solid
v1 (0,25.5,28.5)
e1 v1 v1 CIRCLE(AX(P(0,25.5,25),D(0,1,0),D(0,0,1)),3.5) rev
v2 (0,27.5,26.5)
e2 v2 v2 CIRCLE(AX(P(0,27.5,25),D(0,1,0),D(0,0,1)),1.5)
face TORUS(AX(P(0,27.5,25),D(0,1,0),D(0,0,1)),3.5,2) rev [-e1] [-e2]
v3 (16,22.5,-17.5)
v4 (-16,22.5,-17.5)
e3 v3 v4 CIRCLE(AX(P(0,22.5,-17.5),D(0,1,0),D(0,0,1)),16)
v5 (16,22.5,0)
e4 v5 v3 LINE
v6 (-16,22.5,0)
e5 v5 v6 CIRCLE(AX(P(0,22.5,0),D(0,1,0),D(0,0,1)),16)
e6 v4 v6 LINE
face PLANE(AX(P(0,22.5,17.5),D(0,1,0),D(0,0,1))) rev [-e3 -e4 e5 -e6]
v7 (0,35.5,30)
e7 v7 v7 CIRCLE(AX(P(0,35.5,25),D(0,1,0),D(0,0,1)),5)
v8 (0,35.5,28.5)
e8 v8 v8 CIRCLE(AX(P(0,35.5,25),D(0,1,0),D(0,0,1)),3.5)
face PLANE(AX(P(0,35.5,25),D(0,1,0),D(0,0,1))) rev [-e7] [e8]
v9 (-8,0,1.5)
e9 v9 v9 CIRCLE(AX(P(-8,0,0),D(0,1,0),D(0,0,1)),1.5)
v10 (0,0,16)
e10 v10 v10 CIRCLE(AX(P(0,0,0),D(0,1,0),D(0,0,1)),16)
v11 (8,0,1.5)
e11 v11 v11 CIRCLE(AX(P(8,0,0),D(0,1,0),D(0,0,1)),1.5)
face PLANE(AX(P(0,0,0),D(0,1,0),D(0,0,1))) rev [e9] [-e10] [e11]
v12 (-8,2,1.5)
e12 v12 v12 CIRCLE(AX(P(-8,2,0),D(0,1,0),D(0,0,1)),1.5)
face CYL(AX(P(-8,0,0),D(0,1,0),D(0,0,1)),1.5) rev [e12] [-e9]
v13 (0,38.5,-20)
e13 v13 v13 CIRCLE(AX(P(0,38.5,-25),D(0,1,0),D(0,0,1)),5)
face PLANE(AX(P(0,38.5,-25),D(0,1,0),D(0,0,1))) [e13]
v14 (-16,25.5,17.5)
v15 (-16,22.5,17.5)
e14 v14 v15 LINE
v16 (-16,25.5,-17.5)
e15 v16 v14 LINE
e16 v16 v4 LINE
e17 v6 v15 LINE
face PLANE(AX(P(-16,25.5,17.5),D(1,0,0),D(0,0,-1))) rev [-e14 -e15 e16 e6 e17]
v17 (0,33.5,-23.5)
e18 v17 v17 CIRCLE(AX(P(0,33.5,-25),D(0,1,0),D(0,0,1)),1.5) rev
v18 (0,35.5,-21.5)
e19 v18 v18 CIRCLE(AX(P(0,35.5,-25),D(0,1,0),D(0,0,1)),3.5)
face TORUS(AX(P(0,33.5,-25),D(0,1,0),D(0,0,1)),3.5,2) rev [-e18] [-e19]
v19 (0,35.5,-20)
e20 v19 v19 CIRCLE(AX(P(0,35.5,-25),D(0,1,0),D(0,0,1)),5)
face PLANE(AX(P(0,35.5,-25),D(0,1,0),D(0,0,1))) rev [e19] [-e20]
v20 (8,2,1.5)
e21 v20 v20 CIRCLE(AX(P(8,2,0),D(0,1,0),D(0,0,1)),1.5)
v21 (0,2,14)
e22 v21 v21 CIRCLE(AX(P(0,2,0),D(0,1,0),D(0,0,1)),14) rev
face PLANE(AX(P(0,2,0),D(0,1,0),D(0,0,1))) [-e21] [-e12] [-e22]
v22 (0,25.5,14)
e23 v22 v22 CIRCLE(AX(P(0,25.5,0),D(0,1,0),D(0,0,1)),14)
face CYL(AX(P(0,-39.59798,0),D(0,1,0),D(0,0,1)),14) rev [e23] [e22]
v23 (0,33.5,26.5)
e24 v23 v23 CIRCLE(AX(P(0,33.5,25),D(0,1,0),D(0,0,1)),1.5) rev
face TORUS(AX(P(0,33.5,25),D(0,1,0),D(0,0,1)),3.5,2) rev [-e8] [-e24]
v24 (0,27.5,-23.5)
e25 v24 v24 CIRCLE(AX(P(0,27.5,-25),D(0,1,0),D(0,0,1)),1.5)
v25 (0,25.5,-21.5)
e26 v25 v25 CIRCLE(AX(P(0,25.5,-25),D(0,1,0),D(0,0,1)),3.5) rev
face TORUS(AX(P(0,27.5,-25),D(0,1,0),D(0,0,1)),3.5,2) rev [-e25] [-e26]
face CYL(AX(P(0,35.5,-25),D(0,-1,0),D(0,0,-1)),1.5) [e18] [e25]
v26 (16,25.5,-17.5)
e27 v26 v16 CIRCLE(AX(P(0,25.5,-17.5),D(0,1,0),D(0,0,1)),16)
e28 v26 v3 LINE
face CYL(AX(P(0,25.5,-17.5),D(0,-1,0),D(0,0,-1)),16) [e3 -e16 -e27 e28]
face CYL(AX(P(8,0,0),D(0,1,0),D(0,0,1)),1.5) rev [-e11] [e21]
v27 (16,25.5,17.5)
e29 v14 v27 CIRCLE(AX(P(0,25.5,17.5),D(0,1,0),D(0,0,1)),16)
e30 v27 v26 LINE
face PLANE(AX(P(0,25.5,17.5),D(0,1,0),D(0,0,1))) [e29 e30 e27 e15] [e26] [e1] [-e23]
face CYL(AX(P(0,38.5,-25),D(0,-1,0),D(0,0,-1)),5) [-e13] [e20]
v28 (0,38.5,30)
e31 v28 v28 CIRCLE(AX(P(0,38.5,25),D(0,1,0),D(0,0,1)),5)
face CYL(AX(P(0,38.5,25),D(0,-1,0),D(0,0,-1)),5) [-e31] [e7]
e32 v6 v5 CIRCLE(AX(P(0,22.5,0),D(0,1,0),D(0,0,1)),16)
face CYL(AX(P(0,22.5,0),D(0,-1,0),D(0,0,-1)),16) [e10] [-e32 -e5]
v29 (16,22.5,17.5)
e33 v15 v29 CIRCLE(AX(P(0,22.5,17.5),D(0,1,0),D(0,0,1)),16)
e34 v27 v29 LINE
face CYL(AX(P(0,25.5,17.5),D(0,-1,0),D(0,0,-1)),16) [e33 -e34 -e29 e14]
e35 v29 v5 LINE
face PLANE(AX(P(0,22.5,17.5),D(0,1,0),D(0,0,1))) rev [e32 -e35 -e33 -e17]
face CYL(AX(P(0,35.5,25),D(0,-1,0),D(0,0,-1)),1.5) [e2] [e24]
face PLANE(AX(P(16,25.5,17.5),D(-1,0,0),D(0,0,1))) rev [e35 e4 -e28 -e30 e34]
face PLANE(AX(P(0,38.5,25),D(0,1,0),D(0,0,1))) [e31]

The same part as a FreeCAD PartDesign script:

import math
import FreeCAD as App
import Part
import Sketcher
from FreeCAD import Vector


def edges_at(feature, points):
    """Names of the edges that pass closest to the given points."""
    edges = feature.Shape.Edges
    near = lambda p: min(range(len(edges)), key=lambda i: edges[i].distToShape(Part.Vertex(*p))[0])
    return sorted({f"Edge{near(p) + 1}" for p in points})

doc = App.newDocument("Part")
body = doc.addObject("PartDesign::Body", "Body")

sketch1 = doc.addObject("Sketcher::SketchObject", "Sketch")
body.addObject(sketch1)
sketch1.AttachmentSupport = (doc.XZ_Plane, [""])
sketch1.MapMode = "FlatFace"
sketch1.addGeometry(Part.Circle(Vector(0, 0, 0), Vector(0, 0, 1), 16), False)
sketch1.addConstraint(Sketcher.Constraint("Coincident", 0, 3, -1, 1))
sketch1.addConstraint(Sketcher.Constraint("Diameter", 0, 32.0))
pad1 = doc.addObject("PartDesign::Pad", "Pad")
body.addObject(pad1)
pad1.Profile = sketch1
pad1.Length = 22.5
pad1.Reversed = True

sketch2 = doc.addObject("Sketcher::SketchObject", "Sketch001")
body.addObject(sketch2)
sketch2.AttachmentSupport = (doc.XZ_Plane, [""])
sketch2.MapMode = "FlatFace"
sketch2.AttachmentOffset = App.Placement(Vector(0, 0, -22.5), App.Rotation())
sketch2.addGeometry(Part.LineSegment(Vector(-16, -17.5, 0), Vector(-16, 17.5, 0)), False)
sketch2.addGeometry(Part.ArcOfCircle(Part.Circle(Vector(0, 17.5, 0), Vector(0, 0, 1), 16), math.radians(0), math.radians(180)), False)
sketch2.addGeometry(Part.LineSegment(Vector(16, 17.5, 0), Vector(16, -17.5, 0)), False)
sketch2.addGeometry(Part.ArcOfCircle(Part.Circle(Vector(0, -17.5, 0), Vector(0, 0, 1), 16), math.radians(180), math.radians(360)), False)
sketch2.addConstraint(Sketcher.Constraint("Tangent", 0, 2, 1, 2))
sketch2.addConstraint(Sketcher.Constraint("Tangent", 1, 1, 2, 1))
sketch2.addConstraint(Sketcher.Constraint("Tangent", 2, 2, 3, 2))
sketch2.addConstraint(Sketcher.Constraint("Tangent", 3, 1, 0, 1))
sketch2.addConstraint(Sketcher.Constraint("Vertical", 0))
sketch2.addConstraint(Sketcher.Constraint("Vertical", 2))
sketch2.addConstraint(Sketcher.Constraint("Symmetric", 1, 3, 3, 3, -1, 1))
sketch2.addConstraint(Sketcher.Constraint("Radius", 1, 16.0))
sketch2.addConstraint(Sketcher.Constraint("DistanceY", 0, 1, 0, 2, 35.0))
pad2 = doc.addObject("PartDesign::Pad", "Pad001")
body.addObject(pad2)
pad2.Profile = sketch2
pad2.Length = 3
pad2.Reversed = True

sketch3 = doc.addObject("Sketcher::SketchObject", "Sketch002")
body.addObject(sketch3)
sketch3.AttachmentSupport = (doc.XZ_Plane, [""])
sketch3.MapMode = "FlatFace"
sketch3.AttachmentOffset = App.Placement(Vector(0, 0, -25.5), App.Rotation())
sketch3.addGeometry(Part.Circle(Vector(0, -25, 0), Vector(0, 0, 1), 1.5), False)
sketch3.addGeometry(Part.Circle(Vector(0, 25, 0), Vector(0, 0, 1), 1.5), False)
sketch3.addConstraint(Sketcher.Constraint("Equal", 0, 1))
sketch3.addConstraint(Sketcher.Constraint("Symmetric", 0, 3, 1, 3, -1, 1))
sketch3.addConstraint(Sketcher.Constraint("PointOnObject", 0, 3, -2))
sketch3.addConstraint(Sketcher.Constraint("Diameter", 0, 3.0))
sketch3.addConstraint(Sketcher.Constraint("DistanceY", 0, 3, -1, 1, 25.0))
pad3 = doc.addObject("PartDesign::Pad", "Pad002")
body.addObject(pad3)
pad3.Profile = sketch3
pad3.Length = 10
pad3.Reversed = True

sketch4 = doc.addObject("Sketcher::SketchObject", "Sketch003")
body.addObject(sketch4)
sketch4.AttachmentSupport = (doc.XZ_Plane, [""])
sketch4.MapMode = "FlatFace"
sketch4.AttachmentOffset = App.Placement(Vector(0, 0, -25.5), App.Rotation())
sketch4.addGeometry(Part.Circle(Vector(0, 0, 0), Vector(0, 0, 1), 14), False)
sketch4.addConstraint(Sketcher.Constraint("Coincident", 0, 3, -1, 1))
sketch4.addConstraint(Sketcher.Constraint("Diameter", 0, 28.0))
pocket1 = doc.addObject("PartDesign::Pocket", "Pocket")
body.addObject(pocket1)
pocket1.Profile = sketch4
pocket1.Length = 23.5
pocket1.Reversed = True

sketch5 = doc.addObject("Sketcher::SketchObject", "Sketch004")
body.addObject(sketch5)
sketch5.AttachmentSupport = (doc.XZ_Plane, [""])
sketch5.MapMode = "FlatFace"
sketch5.AttachmentOffset = App.Placement(Vector(0, 0, -2), App.Rotation())
sketch5.addGeometry(Part.Circle(Vector(8, 0, 0), Vector(0, 0, 1), 1.5), False)
sketch5.addGeometry(Part.Circle(Vector(-8, 0, 0), Vector(0, 0, 1), 1.5), False)
sketch5.addConstraint(Sketcher.Constraint("Equal", 0, 1))
sketch5.addConstraint(Sketcher.Constraint("Symmetric", 0, 3, 1, 3, -1, 1))
sketch5.addConstraint(Sketcher.Constraint("PointOnObject", 0, 3, -1))
sketch5.addConstraint(Sketcher.Constraint("Diameter", 0, 3.0))
sketch5.addConstraint(Sketcher.Constraint("DistanceX", -1, 1, 0, 3, 8.0))
pocket2 = doc.addObject("PartDesign::Pocket", "Pocket001")
body.addObject(pocket2)
pocket2.Profile = sketch5
pocket2.Type = "ThroughAll"
pocket2.Reversed = True

sketch6 = doc.addObject("Sketcher::SketchObject", "Sketch005")
body.addObject(sketch6)
sketch6.AttachmentSupport = (doc.XZ_Plane, [""])
sketch6.MapMode = "FlatFace"
sketch6.AttachmentOffset = App.Placement(Vector(0, 0, -35.5), App.Rotation())
sketch6.addGeometry(Part.Circle(Vector(0, -25, 0), Vector(0, 0, 1), 5), False)
sketch6.addGeometry(Part.Circle(Vector(0, 25, 0), Vector(0, 0, 1), 5), False)
sketch6.addConstraint(Sketcher.Constraint("Equal", 0, 1))
sketch6.addConstraint(Sketcher.Constraint("Symmetric", 0, 3, 1, 3, -1, 1))
sketch6.addConstraint(Sketcher.Constraint("PointOnObject", 0, 3, -2))
sketch6.addConstraint(Sketcher.Constraint("Diameter", 0, 10.0))
sketch6.addConstraint(Sketcher.Constraint("DistanceY", 0, 3, -1, 1, 25.0))
pad4 = doc.addObject("PartDesign::Pad", "Pad003")
body.addObject(pad4)
pad4.Profile = sketch6
pad4.Length = 3
pad4.Reversed = True
doc.recompute()

fillet = doc.addObject("PartDesign::Fillet", "Fillet")
body.addObject(fillet)
fillet.Base = (pad4, edges_at(pad4, [
    (0, 25.5, -26.5),
    (0, 35.5, -26.5),
    (0, 25.5, 23.5),
    (0, 35.5, 23.5),
]))
fillet.Radius = 2

doc.recompute()
